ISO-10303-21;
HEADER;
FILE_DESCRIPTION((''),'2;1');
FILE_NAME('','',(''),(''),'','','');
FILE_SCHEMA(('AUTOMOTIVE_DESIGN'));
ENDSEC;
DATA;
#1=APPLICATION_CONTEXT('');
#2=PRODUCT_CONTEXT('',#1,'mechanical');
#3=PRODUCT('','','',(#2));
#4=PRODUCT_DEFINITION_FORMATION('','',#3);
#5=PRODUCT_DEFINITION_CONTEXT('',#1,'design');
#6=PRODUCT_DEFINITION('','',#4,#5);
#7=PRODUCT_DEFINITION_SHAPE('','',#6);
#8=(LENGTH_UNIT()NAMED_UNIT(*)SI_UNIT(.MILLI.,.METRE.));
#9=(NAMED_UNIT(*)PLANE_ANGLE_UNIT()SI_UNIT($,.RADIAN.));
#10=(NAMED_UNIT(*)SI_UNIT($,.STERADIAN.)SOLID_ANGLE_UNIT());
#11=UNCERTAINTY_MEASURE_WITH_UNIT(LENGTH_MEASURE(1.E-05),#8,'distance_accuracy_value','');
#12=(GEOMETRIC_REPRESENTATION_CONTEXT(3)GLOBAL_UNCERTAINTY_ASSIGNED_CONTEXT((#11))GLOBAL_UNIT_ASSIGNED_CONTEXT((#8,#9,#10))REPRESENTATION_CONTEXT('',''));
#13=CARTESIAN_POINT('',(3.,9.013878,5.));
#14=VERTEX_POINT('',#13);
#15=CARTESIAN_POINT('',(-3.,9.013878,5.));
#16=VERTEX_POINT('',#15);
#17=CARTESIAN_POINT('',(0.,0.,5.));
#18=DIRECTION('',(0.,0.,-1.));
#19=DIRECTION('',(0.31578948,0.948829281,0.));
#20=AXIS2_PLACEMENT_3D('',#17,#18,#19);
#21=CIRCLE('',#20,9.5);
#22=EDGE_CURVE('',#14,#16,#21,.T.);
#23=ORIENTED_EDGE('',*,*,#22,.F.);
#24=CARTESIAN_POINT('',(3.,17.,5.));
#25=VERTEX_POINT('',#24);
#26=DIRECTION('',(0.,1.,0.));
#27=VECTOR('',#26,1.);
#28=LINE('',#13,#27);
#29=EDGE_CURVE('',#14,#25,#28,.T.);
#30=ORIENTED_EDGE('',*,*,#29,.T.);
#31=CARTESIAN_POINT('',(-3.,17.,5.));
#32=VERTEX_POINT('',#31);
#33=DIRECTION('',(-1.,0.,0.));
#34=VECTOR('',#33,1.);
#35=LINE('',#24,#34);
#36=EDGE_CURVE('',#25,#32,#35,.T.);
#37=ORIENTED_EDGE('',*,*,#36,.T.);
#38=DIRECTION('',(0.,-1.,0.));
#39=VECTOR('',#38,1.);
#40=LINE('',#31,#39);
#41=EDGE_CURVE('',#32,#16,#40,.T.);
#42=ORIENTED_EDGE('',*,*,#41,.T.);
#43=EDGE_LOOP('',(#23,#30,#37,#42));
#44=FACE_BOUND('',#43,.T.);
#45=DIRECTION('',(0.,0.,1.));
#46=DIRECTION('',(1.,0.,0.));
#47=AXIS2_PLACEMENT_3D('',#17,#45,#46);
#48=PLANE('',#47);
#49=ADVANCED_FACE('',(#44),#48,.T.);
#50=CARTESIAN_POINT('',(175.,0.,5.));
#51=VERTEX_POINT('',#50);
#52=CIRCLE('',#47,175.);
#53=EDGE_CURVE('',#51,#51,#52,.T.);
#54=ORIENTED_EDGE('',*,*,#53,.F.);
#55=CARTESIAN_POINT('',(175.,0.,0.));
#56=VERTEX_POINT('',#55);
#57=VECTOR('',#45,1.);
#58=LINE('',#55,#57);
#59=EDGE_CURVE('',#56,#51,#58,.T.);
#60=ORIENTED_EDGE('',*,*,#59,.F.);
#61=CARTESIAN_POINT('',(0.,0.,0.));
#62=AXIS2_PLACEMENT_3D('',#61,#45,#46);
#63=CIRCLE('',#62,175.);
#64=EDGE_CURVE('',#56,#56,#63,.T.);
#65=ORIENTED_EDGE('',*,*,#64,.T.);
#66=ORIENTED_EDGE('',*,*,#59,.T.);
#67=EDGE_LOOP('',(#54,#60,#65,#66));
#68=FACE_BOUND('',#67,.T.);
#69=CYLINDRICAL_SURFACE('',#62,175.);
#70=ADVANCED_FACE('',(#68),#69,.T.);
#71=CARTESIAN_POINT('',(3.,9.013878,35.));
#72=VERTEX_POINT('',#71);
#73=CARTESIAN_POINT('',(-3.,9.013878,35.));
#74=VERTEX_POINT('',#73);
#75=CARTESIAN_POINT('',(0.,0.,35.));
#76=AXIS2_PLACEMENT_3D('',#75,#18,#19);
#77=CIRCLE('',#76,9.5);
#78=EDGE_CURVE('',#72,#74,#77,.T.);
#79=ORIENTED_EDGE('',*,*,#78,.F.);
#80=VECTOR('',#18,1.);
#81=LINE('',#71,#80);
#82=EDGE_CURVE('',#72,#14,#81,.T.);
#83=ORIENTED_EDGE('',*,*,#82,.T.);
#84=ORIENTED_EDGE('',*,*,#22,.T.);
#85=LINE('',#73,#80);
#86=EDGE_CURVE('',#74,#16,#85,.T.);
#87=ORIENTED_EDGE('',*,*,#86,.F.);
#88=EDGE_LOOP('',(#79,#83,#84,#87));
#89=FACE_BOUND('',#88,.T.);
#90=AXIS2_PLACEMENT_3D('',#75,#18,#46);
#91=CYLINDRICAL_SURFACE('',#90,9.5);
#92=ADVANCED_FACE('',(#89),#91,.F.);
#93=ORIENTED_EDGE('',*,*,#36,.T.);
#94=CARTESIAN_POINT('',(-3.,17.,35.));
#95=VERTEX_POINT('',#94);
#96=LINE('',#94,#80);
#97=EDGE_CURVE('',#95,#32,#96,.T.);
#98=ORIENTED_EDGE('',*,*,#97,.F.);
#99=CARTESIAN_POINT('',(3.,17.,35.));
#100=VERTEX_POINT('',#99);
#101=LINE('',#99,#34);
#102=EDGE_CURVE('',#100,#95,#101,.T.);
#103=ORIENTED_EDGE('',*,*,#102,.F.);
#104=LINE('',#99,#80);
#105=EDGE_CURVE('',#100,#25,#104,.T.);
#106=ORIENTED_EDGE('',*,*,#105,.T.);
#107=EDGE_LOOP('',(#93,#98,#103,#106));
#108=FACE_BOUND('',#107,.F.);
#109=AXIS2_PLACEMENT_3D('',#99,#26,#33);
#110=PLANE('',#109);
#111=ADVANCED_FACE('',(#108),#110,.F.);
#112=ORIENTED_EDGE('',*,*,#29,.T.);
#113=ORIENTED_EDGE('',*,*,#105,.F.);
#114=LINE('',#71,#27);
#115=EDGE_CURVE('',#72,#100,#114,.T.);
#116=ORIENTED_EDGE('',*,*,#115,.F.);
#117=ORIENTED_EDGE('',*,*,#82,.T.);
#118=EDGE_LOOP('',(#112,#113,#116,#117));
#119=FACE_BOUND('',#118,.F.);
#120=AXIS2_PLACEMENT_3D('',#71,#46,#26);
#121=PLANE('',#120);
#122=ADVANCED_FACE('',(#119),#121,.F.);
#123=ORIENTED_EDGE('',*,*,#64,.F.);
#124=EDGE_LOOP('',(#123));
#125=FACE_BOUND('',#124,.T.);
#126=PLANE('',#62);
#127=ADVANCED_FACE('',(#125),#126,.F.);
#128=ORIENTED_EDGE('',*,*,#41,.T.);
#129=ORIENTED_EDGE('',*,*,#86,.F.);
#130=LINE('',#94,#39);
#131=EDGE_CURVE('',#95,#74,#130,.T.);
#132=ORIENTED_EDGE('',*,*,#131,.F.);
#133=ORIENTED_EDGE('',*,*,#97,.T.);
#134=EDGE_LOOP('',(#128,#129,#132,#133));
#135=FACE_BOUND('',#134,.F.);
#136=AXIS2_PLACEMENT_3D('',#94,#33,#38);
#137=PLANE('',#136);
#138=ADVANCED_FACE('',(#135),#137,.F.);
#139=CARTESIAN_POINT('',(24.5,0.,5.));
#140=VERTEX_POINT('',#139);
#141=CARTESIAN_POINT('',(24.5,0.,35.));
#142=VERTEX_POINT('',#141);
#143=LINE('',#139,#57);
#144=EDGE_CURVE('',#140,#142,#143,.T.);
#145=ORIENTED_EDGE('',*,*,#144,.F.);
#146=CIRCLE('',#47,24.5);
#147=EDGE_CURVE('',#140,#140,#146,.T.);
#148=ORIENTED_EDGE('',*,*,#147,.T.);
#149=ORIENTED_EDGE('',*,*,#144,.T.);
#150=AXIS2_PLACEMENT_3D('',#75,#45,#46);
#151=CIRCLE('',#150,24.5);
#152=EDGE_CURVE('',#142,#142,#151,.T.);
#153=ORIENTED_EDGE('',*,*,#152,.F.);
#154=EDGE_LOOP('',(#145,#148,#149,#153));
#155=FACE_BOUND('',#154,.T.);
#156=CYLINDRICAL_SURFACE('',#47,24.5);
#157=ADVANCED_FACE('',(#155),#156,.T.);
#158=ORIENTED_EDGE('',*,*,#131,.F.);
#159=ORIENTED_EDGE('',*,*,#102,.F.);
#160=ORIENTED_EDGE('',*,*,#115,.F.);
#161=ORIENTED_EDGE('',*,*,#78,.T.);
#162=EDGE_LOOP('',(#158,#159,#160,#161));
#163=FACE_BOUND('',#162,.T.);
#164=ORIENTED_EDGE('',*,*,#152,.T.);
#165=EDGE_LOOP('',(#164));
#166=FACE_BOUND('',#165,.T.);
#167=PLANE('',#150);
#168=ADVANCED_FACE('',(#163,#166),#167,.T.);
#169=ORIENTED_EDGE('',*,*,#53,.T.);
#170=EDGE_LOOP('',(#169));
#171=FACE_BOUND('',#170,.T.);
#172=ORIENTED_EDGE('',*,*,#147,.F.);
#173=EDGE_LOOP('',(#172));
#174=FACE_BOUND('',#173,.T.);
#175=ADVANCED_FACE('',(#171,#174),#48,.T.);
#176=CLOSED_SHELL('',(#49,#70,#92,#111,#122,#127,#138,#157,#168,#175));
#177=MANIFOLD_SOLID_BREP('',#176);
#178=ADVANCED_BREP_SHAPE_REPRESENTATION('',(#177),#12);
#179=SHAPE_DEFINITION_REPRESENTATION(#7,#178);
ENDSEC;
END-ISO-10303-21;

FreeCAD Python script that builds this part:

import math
import FreeCAD as App
import Part
import Sketcher

V = App.Vector

doc = App.newDocument("Part")
body = doc.addObject("PartDesign::Body", "Body")

sketch1 = doc.addObject("Sketcher::SketchObject", "Sketch")
body.addObject(sketch1)
sketch1.AttachmentSupport = (doc.XZ_Plane, [""])
sketch1.MapMode = "FlatFace"
sketch1.addGeometry([
    Part.LineSegment(V(0, 0, 0), V(175, 0, 0)),
    Part.LineSegment(V(175, 0, 0), V(175, 5, 0)),
    Part.LineSegment(V(175, 5, 0), V(24.5, 5, 0)),
    Part.LineSegment(V(24.5, 5, 0), V(24.5, 35, 0)),
    Part.LineSegment(V(24.5, 35, 0), V(9.5, 35, 0)),
    Part.LineSegment(V(9.5, 35, 0), V(9.5, 5, 0)),
    Part.LineSegment(V(9.5, 5, 0), V(0, 5, 0)),
    Part.LineSegment(V(0, 5, 0), V(0, 0, 0)),
], False)
sketch1.addConstraint([
    Sketcher.Constraint("Coincident", 0, 2, 1, 1),
    Sketcher.Constraint("Coincident", 1, 2, 2, 1),
    Sketcher.Constraint("Coincident", 2, 2, 3, 1),
    Sketcher.Constraint("Coincident", 3, 2, 4, 1),
    Sketcher.Constraint("Coincident", 4, 2, 5, 1),
    Sketcher.Constraint("Coincident", 5, 2, 6, 1),
    Sketcher.Constraint("Coincident", 6, 2, 7, 1),
    Sketcher.Constraint("Coincident", 7, 2, 0, 1),
    Sketcher.Constraint("Horizontal", 0),
    Sketcher.Constraint("Vertical", 1),
    Sketcher.Constraint("Horizontal", 2),
    Sketcher.Constraint("Vertical", 3),
    Sketcher.Constraint("Horizontal", 4),
    Sketcher.Constraint("Vertical", 5),
    Sketcher.Constraint("Horizontal", 6),
    Sketcher.Constraint("Vertical", 7),
    Sketcher.Constraint("Coincident", 7, 2, -1, 1),
    Sketcher.Constraint("Horizontal", 2, 2, 5, 2),
    Sketcher.Constraint("DistanceX", 0, 1, 0, 2, 175.0),
    Sketcher.Constraint("DistanceX", 4, 2, 4, 1, 15.0),
    Sketcher.Constraint("DistanceY", 1, 1, 1, 2, 5.0),
    Sketcher.Constraint("DistanceY", 3, 1, 3, 2, 30.0),
    Sketcher.Constraint("DistanceX", 2, 2, 2, 1, 150.5),
])
revolution = doc.addObject("PartDesign::Revolution", "Revolution")
body.addObject(revolution)
revolution.Profile = sketch1
revolution.ReferenceAxis = (sketch1, ["V_Axis"])
revolution.Angle = 360

sketch2 = doc.addObject("Sketcher::SketchObject", "Sketch001")
body.addObject(sketch2)
sketch2.AttachmentSupport = (doc.XY_Plane, [""])
sketch2.MapMode = "FlatFace"
sketch2.AttachmentOffset = App.Placement(V(0, 0, 35), App.Rotation())
sketch2.addGeometry([
    Part.LineSegment(V(-3, 17, 0), V(-3, 9.013878, 0)),
    Part.ArcOfCircle(Part.Circle(V(0, 0.000003, 0), V(0, 0, 1), 9.499997), math.radians(71.591513), math.radians(108.408487)),
    Part.LineSegment(V(3, 9.013878, 0), V(3, 17, 0)),
    Part.LineSegment(V(3, 17, 0), V(-3, 17, 0)),
], False)
sketch2.addConstraint([
    Sketcher.Constraint("Coincident", 0, 2, 1, 2),
    Sketcher.Constraint("Coincident", 1, 1, 2, 1),
    Sketcher.Constraint("Coincident", 2, 2, 3, 1),
    Sketcher.Constraint("Coincident", 3, 2, 0, 1),
    Sketcher.Constraint("Vertical", 0),
    Sketcher.Constraint("Vertical", 2),
    Sketcher.Constraint("Horizontal", 3),
    Sketcher.Constraint("Coincident", 1, 3, -1, 1),
    Sketcher.Constraint("Horizontal", 0, 2, 1, 1),
    Sketcher.Constraint("DistanceX", 3, 2, 3, 1, 6.0),
    Sketcher.Constraint("DistanceY", -1, 1, 2, 2, 17.0),
    Sketcher.Constraint("Radius", 1, 9.499997),
])
pocket1 = doc.addObject("PartDesign::Pocket", "Pocket")
body.addObject(pocket1)
pocket1.Profile = sketch2
pocket1.Length = 30

doc.recompute()
